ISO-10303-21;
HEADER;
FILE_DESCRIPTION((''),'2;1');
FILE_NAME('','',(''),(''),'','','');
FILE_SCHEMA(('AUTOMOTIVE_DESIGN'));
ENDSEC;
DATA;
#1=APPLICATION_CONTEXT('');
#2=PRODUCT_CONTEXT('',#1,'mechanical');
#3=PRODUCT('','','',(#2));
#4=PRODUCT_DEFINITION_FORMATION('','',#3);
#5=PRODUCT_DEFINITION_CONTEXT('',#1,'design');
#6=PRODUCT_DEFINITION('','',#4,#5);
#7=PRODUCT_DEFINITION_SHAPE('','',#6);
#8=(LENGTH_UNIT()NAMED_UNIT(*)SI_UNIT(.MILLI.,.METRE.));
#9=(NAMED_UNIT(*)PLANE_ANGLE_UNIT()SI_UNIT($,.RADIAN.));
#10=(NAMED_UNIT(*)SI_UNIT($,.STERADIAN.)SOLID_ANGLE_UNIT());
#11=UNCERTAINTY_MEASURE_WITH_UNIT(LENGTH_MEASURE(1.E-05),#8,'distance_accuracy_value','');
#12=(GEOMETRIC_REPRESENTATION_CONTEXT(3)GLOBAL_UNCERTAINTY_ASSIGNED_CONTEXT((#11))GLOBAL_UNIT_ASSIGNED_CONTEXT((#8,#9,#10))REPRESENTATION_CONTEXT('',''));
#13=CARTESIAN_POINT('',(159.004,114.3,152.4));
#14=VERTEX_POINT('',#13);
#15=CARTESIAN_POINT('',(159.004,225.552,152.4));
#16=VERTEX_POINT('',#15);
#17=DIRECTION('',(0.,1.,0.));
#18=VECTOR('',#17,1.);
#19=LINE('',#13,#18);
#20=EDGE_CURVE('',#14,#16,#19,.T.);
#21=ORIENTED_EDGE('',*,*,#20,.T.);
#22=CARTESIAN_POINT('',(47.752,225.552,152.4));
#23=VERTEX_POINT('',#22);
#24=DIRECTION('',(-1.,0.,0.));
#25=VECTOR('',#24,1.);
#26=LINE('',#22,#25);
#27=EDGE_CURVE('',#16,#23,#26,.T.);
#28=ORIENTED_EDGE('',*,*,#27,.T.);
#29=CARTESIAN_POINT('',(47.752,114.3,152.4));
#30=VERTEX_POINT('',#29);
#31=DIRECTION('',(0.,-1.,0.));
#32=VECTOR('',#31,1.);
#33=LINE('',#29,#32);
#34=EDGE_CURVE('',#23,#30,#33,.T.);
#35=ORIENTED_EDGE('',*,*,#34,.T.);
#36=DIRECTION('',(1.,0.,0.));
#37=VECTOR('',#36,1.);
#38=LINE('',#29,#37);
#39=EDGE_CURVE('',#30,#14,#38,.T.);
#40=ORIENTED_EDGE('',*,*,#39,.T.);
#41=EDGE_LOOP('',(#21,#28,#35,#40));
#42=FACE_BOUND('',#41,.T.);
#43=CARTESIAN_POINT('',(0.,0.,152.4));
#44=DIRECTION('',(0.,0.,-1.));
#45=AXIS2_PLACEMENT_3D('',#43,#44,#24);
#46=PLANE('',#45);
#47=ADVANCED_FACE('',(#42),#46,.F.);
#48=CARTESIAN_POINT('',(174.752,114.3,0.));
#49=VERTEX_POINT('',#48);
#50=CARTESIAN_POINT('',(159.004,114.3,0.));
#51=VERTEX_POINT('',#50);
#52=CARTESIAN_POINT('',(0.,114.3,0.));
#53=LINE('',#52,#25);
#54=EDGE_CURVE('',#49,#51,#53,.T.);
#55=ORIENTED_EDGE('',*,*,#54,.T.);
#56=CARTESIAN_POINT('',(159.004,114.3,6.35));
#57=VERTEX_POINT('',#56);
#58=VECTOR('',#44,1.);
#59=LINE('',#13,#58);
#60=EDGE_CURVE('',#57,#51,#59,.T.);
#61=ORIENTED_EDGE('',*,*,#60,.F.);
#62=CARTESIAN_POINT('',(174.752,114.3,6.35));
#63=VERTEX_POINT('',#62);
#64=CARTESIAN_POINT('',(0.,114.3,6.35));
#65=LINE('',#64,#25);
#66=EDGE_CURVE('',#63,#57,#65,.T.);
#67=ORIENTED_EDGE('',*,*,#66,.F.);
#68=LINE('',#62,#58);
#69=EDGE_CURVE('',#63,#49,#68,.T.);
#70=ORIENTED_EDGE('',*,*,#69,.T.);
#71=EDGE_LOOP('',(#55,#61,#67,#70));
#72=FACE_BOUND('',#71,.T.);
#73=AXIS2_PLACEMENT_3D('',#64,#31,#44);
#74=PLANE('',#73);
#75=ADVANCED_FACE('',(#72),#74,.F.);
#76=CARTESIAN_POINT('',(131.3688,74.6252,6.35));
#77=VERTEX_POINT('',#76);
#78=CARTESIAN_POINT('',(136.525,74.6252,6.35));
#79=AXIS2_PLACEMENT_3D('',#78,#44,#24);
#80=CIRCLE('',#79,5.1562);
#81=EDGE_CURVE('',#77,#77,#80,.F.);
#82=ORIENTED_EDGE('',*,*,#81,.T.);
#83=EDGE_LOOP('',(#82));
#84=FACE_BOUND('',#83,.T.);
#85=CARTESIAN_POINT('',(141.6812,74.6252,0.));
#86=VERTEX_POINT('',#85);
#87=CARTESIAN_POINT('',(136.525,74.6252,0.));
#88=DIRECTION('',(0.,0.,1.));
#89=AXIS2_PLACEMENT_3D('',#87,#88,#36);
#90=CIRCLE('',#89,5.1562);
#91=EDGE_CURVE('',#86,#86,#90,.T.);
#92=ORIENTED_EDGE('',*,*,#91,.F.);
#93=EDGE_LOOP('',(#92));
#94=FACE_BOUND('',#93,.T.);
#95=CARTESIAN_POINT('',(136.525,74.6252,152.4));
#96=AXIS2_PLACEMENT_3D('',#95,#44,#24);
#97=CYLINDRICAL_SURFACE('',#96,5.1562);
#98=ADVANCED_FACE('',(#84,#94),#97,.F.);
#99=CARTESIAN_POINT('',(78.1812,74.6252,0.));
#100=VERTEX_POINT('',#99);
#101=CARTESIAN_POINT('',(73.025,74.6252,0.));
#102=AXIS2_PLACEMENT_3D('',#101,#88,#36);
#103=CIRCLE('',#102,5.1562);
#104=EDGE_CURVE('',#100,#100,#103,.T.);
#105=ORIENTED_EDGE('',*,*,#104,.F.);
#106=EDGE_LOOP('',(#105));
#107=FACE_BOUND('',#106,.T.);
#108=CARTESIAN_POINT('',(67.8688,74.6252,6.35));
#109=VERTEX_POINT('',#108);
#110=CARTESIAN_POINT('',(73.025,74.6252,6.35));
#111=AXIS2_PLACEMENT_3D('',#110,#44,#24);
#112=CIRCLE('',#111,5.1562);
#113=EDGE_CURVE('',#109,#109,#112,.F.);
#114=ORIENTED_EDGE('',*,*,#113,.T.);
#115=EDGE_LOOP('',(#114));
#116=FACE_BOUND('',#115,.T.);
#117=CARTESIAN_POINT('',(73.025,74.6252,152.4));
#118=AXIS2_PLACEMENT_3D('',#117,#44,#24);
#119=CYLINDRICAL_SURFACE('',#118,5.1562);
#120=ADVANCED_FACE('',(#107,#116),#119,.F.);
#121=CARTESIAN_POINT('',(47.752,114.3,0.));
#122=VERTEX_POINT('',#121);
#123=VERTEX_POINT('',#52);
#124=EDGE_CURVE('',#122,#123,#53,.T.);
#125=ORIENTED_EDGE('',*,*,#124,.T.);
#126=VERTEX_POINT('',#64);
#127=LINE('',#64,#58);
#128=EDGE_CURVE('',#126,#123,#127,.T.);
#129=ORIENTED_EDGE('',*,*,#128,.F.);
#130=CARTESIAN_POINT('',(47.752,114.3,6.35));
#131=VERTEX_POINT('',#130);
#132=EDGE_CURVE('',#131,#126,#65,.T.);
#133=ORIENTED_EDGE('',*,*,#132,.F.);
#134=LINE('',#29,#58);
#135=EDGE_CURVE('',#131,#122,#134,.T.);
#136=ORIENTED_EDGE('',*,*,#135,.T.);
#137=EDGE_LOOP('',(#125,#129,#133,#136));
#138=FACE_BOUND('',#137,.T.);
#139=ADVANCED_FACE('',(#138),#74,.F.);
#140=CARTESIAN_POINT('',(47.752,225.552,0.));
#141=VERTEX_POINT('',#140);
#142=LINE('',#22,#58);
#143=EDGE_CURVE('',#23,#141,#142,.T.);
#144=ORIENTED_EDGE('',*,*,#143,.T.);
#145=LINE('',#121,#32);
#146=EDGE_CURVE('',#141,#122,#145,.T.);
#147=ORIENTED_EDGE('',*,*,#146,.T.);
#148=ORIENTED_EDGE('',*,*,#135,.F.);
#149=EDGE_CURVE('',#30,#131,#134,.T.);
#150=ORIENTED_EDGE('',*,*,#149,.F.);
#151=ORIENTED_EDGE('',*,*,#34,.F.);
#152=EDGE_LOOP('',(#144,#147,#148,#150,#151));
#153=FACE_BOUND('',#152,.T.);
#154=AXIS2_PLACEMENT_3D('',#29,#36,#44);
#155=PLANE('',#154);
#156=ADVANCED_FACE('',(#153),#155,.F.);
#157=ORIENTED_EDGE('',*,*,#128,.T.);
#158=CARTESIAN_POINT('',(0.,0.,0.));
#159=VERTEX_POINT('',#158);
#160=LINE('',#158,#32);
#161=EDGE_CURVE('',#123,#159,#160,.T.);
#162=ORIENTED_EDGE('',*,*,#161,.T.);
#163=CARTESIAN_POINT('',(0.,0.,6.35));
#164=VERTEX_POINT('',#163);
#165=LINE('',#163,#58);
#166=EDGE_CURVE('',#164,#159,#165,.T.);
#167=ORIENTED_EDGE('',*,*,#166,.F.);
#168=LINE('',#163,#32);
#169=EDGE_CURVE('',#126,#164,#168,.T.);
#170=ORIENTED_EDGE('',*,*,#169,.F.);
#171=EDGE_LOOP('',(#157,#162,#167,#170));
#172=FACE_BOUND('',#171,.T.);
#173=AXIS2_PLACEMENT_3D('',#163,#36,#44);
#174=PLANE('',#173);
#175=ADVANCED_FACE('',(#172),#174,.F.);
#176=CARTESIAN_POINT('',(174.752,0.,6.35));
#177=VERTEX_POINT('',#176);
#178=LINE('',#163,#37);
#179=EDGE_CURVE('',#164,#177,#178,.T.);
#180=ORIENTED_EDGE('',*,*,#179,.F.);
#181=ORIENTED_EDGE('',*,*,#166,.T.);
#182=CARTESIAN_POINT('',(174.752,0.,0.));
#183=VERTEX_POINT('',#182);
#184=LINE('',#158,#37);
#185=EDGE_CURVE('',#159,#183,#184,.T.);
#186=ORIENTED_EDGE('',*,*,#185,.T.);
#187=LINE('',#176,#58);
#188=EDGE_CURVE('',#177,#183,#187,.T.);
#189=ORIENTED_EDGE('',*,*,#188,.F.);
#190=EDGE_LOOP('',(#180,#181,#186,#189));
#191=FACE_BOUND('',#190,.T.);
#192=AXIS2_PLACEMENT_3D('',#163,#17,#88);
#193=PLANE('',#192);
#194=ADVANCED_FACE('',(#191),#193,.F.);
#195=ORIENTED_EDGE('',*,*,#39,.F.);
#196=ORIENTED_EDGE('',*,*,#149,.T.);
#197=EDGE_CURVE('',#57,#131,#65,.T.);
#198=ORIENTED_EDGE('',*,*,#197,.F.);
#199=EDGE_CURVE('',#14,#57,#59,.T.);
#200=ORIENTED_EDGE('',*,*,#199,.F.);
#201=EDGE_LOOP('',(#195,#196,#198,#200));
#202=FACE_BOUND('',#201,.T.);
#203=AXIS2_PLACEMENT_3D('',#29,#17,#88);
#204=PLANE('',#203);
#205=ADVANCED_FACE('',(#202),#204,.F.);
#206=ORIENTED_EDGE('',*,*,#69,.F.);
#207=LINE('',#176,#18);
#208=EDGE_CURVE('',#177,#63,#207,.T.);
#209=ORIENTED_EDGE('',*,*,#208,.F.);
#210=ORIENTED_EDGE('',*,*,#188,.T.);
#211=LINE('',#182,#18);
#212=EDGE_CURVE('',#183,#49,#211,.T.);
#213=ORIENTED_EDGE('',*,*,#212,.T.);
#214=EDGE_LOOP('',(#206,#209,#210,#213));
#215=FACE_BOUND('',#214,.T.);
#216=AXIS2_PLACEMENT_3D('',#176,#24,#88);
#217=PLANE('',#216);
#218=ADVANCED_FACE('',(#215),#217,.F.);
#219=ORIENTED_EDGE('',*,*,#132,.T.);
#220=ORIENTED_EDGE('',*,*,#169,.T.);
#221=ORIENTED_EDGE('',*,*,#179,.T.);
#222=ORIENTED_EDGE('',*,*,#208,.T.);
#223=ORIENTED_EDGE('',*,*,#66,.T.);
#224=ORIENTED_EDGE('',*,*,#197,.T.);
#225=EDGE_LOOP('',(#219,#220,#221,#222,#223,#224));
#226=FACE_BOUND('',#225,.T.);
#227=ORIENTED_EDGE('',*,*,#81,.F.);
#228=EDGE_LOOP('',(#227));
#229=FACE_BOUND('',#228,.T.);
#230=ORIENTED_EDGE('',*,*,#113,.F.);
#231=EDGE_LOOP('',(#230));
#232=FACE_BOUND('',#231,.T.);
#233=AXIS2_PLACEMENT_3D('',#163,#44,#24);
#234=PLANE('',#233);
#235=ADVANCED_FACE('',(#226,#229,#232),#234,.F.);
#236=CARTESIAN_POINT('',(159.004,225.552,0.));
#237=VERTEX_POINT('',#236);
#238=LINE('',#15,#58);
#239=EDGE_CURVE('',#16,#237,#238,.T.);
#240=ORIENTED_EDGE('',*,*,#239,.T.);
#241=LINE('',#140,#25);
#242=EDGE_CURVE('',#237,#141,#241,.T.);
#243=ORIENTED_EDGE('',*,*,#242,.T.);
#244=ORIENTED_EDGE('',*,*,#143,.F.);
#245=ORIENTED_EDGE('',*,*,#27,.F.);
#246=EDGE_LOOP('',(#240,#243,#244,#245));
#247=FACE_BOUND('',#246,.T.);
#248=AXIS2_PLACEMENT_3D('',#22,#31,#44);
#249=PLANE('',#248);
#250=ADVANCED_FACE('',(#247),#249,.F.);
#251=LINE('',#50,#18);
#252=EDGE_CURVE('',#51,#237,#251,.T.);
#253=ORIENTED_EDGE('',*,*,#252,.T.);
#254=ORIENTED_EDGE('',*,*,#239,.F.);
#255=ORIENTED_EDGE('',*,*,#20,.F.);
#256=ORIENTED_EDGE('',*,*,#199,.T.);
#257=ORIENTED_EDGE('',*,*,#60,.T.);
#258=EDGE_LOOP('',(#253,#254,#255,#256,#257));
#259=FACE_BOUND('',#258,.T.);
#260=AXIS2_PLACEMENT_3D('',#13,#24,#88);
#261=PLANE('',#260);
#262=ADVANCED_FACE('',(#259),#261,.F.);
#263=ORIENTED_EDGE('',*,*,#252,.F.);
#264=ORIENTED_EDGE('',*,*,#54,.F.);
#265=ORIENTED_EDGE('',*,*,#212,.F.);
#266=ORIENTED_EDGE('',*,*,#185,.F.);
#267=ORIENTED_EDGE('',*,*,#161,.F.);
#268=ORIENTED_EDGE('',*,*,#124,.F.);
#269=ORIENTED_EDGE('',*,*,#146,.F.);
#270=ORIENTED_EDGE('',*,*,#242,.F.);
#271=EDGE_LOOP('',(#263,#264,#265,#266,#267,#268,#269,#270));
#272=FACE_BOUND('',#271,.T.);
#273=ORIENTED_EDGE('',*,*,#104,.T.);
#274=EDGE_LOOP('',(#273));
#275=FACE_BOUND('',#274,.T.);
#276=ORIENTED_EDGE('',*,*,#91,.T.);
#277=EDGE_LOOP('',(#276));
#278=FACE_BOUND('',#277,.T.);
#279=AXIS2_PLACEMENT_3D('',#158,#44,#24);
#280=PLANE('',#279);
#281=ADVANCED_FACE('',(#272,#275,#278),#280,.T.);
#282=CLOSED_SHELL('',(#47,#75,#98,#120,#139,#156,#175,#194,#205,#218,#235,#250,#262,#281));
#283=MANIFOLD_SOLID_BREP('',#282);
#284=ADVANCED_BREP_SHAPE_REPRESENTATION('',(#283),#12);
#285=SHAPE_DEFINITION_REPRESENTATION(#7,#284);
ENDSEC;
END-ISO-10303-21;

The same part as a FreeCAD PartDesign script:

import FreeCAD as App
import Part
import Sketcher

V = App.Vector
Q = App.Units.Quantity

doc = App.newDocument("Part")
params = doc.addObject("Spreadsheet::Sheet", "Params")
for row, (alias, value) in enumerate([
    ("sketch1_height", "4.5 in"),
    ("sketch1_width", "6.88 in"),
    ("pad1_length", "0.25 in"),
    ("sketch2_width", "4.38 in"),
    ("pad2_length", "6 in"),
    ("sketch3_diameter", "0.406 in"),
], start=1):
    params.set(f"A{row}", alias)
    params.set(f"B{row}", "=" + value)
    params.setAlias(f"B{row}", alias)

body = doc.addObject("PartDesign::Body", "Body")

# Sketch on XY plane
sketch1 = body.newObject("Sketcher::SketchObject", "Sketch")
sketch1.AttachmentSupport = (doc.getObject("XY_Plane"), [""])
sketch1.MapMode = "FlatFace"
sketch1.addGeometry([
    Part.LineSegment(V(0, 114.3, 0), V(0, 0, 0)),
    Part.LineSegment(V(0, 0, 0), V(174.752, 0, 0)),
    Part.LineSegment(V(174.752, 0, 0), V(174.752, 114.3, 0)),
    Part.LineSegment(V(174.752, 114.3, 0), V(0, 114.3, 0)),
], False)
sketch1.addConstraint([
    Sketcher.Constraint("Coincident", 0, 2, 1, 1),
    Sketcher.Constraint("Coincident", 1, 2, 2, 1),
    Sketcher.Constraint("Coincident", 2, 2, 3, 1),
    Sketcher.Constraint("Coincident", 3, 2, 0, 1),
    Sketcher.Constraint("Vertical", 0),
    Sketcher.Constraint("Horizontal", 1),
    Sketcher.Constraint("Vertical", 2),
    Sketcher.Constraint("Horizontal", 3),
    Sketcher.Constraint("Coincident", 0, 2, -1, 1),
    Sketcher.Constraint("DistanceY", 0, 2, 0, 1, Q("4.5 in")),
    Sketcher.Constraint("DistanceX", 1, 1, 1, 2, Q("6.88 in")),
])
sketch1.setExpression("Constraints[9]", "Params.sketch1_height")
sketch1.setExpression("Constraints[10]", "Params.sketch1_width")
pad1 = body.newObject("PartDesign::Pad", "Pad")
pad1.Profile = sketch1
pad1.setExpression("Length", "Params.pad1_length")

# Sketch on XY plane
sketch2 = body.newObject("Sketcher::SketchObject", "Sketch001")
sketch2.AttachmentSupport = (doc.getObject("XY_Plane"), [""])
sketch2.MapMode = "FlatFace"
sketch2.addGeometry([
    Part.LineSegment(V(47.752, 225.552, 0), V(47.752, 114.3, 0)),
    Part.LineSegment(V(47.752, 114.3, 0), V(159.004, 114.3, 0)),
    Part.LineSegment(V(159.004, 114.3, 0), V(159.004, 225.552, 0)),
    Part.LineSegment(V(159.004, 225.552, 0), V(47.752, 225.552, 0)),
], False)
sketch2.addConstraint([
    Sketcher.Constraint("Coincident", 0, 2, 1, 1),
    Sketcher.Constraint("Coincident", 1, 2, 2, 1),
    Sketcher.Constraint("Coincident", 2, 2, 3, 1),
    Sketcher.Constraint("Coincident", 3, 2, 0, 1),
    Sketcher.Constraint("Vertical", 0),
    Sketcher.Constraint("Horizontal", 1),
    Sketcher.Constraint("Vertical", 2),
    Sketcher.Constraint("Horizontal", 3),
    Sketcher.Constraint("Equal", 3, 0),
    Sketcher.Constraint("DistanceX", 1, 1, 1, 2, Q("4.38 in")),
    Sketcher.Constraint("DistanceY", -1, 1, 0, 2, Q("4.5 in")),
    Sketcher.Constraint("DistanceX", -1, 1, 0, 2, Q("1.88 in")),
])
sketch2.setExpression("Constraints[9]", "Params.sketch2_width")
pad2 = body.newObject("PartDesign::Pad", "Pad001")
pad2.Profile = sketch2
pad2.setExpression("Length", "Params.pad2_length")

# Sketch on XY plane
sketch3 = body.newObject("Sketcher::SketchObject", "Sketch002")
sketch3.AttachmentSupport = (doc.getObject("XY_Plane"), [""])
sketch3.MapMode = "FlatFace"
sketch3.addGeometry([
    Part.Circle(V(73.025, 74.6252, 0), V(0, 0, 1), 5.1562),
    Part.Circle(V(136.525, 74.6252, 0), V(0, 0, 1), 5.1562),
], False)
sketch3.addConstraint([
    Sketcher.Constraint("Equal", 0, 1),
    Sketcher.Constraint("Horizontal", 0, 3, 1, 3),
    Sketcher.Constraint("Diameter", 0, Q("0.406 in")),
    Sketcher.Constraint("DistanceX", 0, 3, 1, 3, Q("2.5 in")),
    Sketcher.Constraint("DistanceX", -1, 1, 0, 3, Q("2.875 in")),
    Sketcher.Constraint("DistanceY", -1, 1, 0, 3, Q("2.938 in")),
])
sketch3.setExpression("Constraints[2]", "Params.sketch3_diameter")
pocket1 = body.newObject("PartDesign::Pocket", "Pocket")
pocket1.Profile = sketch3
pocket1.Type = "ThroughAll"
pocket1.Reversed = True

doc.recompute()
